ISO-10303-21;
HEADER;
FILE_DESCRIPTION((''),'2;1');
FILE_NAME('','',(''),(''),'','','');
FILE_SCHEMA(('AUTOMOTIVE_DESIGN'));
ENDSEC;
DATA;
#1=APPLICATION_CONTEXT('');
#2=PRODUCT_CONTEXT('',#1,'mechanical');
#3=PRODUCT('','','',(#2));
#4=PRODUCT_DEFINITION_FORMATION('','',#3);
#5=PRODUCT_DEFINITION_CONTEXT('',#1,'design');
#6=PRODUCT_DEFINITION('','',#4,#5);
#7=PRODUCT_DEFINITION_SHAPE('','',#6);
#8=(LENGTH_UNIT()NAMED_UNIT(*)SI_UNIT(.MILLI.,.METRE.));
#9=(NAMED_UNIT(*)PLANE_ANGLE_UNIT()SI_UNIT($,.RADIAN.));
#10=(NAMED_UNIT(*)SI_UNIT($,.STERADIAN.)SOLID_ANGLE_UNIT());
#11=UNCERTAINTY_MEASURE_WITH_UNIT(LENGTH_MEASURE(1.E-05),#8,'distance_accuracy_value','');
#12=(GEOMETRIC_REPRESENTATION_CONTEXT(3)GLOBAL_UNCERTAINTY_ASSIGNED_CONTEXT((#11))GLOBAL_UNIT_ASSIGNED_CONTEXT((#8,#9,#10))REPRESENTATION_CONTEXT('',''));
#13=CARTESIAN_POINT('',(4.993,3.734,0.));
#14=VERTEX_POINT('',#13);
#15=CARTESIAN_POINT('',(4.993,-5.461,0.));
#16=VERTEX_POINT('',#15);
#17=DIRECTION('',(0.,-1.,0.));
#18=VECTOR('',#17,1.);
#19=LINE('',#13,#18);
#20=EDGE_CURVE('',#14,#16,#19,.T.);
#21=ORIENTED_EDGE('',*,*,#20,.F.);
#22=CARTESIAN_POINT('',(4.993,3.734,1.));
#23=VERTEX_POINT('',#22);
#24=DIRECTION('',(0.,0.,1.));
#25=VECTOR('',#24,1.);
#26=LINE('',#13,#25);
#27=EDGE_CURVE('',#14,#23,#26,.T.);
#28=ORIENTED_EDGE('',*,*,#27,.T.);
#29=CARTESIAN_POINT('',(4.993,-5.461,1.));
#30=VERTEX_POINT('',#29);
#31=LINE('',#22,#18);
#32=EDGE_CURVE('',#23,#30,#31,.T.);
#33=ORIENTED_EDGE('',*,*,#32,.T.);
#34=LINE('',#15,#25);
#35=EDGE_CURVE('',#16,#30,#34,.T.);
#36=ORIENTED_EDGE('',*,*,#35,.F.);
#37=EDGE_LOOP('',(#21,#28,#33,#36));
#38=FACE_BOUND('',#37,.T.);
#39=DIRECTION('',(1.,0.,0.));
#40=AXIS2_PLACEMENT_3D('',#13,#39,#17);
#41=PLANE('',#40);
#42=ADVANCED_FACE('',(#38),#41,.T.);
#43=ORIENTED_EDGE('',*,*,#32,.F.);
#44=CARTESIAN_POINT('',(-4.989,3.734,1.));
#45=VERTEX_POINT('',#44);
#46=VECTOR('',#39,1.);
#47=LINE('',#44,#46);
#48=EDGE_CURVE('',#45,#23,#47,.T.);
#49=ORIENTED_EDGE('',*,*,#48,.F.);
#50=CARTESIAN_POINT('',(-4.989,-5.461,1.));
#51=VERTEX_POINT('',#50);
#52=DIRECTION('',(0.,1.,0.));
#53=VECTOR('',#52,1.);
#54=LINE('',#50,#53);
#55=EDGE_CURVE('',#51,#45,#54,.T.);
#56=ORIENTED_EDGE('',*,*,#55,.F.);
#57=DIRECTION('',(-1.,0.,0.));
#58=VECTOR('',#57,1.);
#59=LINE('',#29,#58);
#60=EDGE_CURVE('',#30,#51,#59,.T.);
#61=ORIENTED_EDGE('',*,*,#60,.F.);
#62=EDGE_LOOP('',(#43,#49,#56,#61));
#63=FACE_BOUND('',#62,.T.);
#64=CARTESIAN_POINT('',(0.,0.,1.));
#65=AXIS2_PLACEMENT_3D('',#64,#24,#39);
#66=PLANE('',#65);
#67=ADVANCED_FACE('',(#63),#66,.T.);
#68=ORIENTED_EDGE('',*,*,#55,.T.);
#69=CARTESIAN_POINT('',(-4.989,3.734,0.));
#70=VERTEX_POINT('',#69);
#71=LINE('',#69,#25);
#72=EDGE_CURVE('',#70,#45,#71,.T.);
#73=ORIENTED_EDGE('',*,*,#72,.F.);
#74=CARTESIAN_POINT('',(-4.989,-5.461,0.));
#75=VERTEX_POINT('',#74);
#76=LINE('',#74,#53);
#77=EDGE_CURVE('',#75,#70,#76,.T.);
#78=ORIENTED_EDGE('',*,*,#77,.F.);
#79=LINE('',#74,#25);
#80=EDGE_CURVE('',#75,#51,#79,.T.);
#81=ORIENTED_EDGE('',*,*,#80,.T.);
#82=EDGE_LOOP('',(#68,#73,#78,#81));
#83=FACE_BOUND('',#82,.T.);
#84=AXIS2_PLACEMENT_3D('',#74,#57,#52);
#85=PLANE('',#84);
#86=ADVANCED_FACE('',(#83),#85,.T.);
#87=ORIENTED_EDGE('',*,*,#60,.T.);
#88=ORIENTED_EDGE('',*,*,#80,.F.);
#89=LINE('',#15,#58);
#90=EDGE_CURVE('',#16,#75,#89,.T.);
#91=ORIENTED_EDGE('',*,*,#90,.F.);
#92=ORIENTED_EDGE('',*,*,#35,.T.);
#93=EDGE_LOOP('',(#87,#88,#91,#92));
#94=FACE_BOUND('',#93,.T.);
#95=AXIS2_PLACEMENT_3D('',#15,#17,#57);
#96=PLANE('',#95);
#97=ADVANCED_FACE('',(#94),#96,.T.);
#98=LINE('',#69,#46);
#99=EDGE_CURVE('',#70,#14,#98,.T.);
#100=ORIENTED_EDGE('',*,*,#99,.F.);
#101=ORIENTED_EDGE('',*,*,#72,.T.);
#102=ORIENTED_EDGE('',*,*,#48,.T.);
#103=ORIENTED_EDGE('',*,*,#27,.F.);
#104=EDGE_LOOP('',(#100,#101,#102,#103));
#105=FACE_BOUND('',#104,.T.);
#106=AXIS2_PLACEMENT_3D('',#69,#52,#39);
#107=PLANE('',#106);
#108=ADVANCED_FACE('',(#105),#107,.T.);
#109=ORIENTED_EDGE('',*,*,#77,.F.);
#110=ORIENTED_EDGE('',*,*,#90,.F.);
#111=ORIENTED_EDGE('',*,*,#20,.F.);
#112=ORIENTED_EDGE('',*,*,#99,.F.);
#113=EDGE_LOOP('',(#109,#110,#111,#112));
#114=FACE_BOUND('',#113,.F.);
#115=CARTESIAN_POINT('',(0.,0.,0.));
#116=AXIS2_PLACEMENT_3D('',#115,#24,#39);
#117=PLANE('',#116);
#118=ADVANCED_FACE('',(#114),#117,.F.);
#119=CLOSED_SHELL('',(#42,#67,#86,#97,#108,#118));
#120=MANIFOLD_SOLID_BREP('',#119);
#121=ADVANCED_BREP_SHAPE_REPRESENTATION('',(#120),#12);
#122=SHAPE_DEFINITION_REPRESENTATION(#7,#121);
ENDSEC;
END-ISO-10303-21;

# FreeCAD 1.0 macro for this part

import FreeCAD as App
import Part
import Sketcher
from FreeCAD import Vector
Q = App.Units.Quantity


def add_polygon(sketch, points):
    """Adds a closed chain of lines whose ends are joined by coincident constraints."""
    first, n = sketch.GeometryCount, len(points)
    for a, b in zip(points, points[1:] + points[:1]):
        sketch.addGeometry(Part.LineSegment(App.Vector(*a, 0), App.Vector(*b, 0)), False)
    for i in range(n):
        sketch.addConstraint(Sketcher.Constraint("Coincident", first + i, 2, first + (i + 1) % n, 1))

doc = App.newDocument("Part")
body = doc.addObject("PartDesign::Body", "Body")

sketch1 = doc.addObject("Sketcher::SketchObject", "Sketch")
body.addObject(sketch1)
sketch1.AttachmentSupport = (doc.XY_Plane, [""])
sketch1.MapMode = "FlatFace"
add_polygon(sketch1, [(5, 4), (-5, 4), (-5, -5), (5, -5)])
sketch1.addConstraint([
    Sketcher.Constraint("Horizontal", 0),
    Sketcher.Constraint("Vertical", 1),
    Sketcher.Constraint("Horizontal", 2),
    Sketcher.Constraint("Vertical", 3),
    Sketcher.Constraint("DistanceX", 0, 2, 0, 1, Q("0.393 in")),
    Sketcher.Constraint("DistanceY", 1, 2, 1, 1, Q("0.362 in")),
    Sketcher.Constraint("DistanceY", -1, 1, 0, 2, Q("0.147 in")),
    Sketcher.Constraint("DistanceX", 0, 2, -1, 1, 4.989),
])
pad1 = doc.addObject("PartDesign::Pad", "Pad")
body.addObject(pad1)
pad1.Profile = sketch1
pad1.Length = 1

doc.recompute()
